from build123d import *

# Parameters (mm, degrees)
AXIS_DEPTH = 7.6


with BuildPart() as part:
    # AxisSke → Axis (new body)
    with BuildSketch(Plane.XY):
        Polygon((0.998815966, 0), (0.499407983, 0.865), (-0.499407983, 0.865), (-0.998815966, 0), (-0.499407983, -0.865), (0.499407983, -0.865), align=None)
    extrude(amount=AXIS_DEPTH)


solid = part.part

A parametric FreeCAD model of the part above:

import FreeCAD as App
import Part
import Sketcher

V = App.Vector
Q = App.Units.Quantity

doc = App.newDocument("Part")
body = doc.addObject("PartDesign::Body", "Body")

sketch1 = doc.addObject("Sketcher::SketchObject", "Sketch")
body.addObject(sketch1)
sketch1.AttachmentSupport = (doc.XY_Plane, [""])
sketch1.MapMode = "FlatFace"
sketch1.addGeometry([
    Part.LineSegment(V(0.998816, 0, 0), V(0.499408, 0.865, 0)),
    Part.LineSegment(V(0.499408, 0.865, 0), V(-0.499408, 0.865, 0)),
    Part.LineSegment(V(-0.499408, 0.865, 0), V(-0.998816, 0, 0)),
    Part.LineSegment(V(-0.998816, 0, 0), V(-0.499408, -0.865, 0)),
    Part.LineSegment(V(-0.499408, -0.865, 0), V(0.499408, -0.865, 0)),
    Part.LineSegment(V(0.499408, -0.865, 0), V(0.998816, 0, 0)),
], False)
sketch1.addConstraint([
    Sketcher.Constraint("Coincident", 0, 2, 1, 1),
    Sketcher.Constraint("Coincident", 1, 2, 2, 1),
    Sketcher.Constraint("Coincident", 2, 2, 3, 1),
    Sketcher.Constraint("Coincident", 3, 2, 4, 1),
    Sketcher.Constraint("Coincident", 4, 2, 5, 1),
    Sketcher.Constraint("Coincident", 5, 2, 0, 1),
    Sketcher.Constraint("Horizontal", 1),
    Sketcher.Constraint("Horizontal", 4),
    Sketcher.Constraint("Symmetric", 0, 2, 3, 2, -1, 1),
    Sketcher.Constraint("Symmetric", 2, 2, 5, 2, -1, 1),
    Sketcher.Constraint("PointOnObject", 2, 2, -1),
    Sketcher.Constraint("Parallel", 2, 5),
    Sketcher.Constraint("Vertical", 1, 2, 3, 2),
    Sketcher.Constraint("Angle", 0, Q("120 deg")),
    Sketcher.Constraint("DistanceY", 3, 2, 1, 2, 1.73),
    Sketcher.Constraint("DistanceX", 1, 2, 1, 1, 0.998816),
])
pad1 = doc.addObject("PartDesign::Pad", "Pad")
body.addObject(pad1)
pad1.Profile = sketch1
pad1.Length = 7.6

doc.recompute()
